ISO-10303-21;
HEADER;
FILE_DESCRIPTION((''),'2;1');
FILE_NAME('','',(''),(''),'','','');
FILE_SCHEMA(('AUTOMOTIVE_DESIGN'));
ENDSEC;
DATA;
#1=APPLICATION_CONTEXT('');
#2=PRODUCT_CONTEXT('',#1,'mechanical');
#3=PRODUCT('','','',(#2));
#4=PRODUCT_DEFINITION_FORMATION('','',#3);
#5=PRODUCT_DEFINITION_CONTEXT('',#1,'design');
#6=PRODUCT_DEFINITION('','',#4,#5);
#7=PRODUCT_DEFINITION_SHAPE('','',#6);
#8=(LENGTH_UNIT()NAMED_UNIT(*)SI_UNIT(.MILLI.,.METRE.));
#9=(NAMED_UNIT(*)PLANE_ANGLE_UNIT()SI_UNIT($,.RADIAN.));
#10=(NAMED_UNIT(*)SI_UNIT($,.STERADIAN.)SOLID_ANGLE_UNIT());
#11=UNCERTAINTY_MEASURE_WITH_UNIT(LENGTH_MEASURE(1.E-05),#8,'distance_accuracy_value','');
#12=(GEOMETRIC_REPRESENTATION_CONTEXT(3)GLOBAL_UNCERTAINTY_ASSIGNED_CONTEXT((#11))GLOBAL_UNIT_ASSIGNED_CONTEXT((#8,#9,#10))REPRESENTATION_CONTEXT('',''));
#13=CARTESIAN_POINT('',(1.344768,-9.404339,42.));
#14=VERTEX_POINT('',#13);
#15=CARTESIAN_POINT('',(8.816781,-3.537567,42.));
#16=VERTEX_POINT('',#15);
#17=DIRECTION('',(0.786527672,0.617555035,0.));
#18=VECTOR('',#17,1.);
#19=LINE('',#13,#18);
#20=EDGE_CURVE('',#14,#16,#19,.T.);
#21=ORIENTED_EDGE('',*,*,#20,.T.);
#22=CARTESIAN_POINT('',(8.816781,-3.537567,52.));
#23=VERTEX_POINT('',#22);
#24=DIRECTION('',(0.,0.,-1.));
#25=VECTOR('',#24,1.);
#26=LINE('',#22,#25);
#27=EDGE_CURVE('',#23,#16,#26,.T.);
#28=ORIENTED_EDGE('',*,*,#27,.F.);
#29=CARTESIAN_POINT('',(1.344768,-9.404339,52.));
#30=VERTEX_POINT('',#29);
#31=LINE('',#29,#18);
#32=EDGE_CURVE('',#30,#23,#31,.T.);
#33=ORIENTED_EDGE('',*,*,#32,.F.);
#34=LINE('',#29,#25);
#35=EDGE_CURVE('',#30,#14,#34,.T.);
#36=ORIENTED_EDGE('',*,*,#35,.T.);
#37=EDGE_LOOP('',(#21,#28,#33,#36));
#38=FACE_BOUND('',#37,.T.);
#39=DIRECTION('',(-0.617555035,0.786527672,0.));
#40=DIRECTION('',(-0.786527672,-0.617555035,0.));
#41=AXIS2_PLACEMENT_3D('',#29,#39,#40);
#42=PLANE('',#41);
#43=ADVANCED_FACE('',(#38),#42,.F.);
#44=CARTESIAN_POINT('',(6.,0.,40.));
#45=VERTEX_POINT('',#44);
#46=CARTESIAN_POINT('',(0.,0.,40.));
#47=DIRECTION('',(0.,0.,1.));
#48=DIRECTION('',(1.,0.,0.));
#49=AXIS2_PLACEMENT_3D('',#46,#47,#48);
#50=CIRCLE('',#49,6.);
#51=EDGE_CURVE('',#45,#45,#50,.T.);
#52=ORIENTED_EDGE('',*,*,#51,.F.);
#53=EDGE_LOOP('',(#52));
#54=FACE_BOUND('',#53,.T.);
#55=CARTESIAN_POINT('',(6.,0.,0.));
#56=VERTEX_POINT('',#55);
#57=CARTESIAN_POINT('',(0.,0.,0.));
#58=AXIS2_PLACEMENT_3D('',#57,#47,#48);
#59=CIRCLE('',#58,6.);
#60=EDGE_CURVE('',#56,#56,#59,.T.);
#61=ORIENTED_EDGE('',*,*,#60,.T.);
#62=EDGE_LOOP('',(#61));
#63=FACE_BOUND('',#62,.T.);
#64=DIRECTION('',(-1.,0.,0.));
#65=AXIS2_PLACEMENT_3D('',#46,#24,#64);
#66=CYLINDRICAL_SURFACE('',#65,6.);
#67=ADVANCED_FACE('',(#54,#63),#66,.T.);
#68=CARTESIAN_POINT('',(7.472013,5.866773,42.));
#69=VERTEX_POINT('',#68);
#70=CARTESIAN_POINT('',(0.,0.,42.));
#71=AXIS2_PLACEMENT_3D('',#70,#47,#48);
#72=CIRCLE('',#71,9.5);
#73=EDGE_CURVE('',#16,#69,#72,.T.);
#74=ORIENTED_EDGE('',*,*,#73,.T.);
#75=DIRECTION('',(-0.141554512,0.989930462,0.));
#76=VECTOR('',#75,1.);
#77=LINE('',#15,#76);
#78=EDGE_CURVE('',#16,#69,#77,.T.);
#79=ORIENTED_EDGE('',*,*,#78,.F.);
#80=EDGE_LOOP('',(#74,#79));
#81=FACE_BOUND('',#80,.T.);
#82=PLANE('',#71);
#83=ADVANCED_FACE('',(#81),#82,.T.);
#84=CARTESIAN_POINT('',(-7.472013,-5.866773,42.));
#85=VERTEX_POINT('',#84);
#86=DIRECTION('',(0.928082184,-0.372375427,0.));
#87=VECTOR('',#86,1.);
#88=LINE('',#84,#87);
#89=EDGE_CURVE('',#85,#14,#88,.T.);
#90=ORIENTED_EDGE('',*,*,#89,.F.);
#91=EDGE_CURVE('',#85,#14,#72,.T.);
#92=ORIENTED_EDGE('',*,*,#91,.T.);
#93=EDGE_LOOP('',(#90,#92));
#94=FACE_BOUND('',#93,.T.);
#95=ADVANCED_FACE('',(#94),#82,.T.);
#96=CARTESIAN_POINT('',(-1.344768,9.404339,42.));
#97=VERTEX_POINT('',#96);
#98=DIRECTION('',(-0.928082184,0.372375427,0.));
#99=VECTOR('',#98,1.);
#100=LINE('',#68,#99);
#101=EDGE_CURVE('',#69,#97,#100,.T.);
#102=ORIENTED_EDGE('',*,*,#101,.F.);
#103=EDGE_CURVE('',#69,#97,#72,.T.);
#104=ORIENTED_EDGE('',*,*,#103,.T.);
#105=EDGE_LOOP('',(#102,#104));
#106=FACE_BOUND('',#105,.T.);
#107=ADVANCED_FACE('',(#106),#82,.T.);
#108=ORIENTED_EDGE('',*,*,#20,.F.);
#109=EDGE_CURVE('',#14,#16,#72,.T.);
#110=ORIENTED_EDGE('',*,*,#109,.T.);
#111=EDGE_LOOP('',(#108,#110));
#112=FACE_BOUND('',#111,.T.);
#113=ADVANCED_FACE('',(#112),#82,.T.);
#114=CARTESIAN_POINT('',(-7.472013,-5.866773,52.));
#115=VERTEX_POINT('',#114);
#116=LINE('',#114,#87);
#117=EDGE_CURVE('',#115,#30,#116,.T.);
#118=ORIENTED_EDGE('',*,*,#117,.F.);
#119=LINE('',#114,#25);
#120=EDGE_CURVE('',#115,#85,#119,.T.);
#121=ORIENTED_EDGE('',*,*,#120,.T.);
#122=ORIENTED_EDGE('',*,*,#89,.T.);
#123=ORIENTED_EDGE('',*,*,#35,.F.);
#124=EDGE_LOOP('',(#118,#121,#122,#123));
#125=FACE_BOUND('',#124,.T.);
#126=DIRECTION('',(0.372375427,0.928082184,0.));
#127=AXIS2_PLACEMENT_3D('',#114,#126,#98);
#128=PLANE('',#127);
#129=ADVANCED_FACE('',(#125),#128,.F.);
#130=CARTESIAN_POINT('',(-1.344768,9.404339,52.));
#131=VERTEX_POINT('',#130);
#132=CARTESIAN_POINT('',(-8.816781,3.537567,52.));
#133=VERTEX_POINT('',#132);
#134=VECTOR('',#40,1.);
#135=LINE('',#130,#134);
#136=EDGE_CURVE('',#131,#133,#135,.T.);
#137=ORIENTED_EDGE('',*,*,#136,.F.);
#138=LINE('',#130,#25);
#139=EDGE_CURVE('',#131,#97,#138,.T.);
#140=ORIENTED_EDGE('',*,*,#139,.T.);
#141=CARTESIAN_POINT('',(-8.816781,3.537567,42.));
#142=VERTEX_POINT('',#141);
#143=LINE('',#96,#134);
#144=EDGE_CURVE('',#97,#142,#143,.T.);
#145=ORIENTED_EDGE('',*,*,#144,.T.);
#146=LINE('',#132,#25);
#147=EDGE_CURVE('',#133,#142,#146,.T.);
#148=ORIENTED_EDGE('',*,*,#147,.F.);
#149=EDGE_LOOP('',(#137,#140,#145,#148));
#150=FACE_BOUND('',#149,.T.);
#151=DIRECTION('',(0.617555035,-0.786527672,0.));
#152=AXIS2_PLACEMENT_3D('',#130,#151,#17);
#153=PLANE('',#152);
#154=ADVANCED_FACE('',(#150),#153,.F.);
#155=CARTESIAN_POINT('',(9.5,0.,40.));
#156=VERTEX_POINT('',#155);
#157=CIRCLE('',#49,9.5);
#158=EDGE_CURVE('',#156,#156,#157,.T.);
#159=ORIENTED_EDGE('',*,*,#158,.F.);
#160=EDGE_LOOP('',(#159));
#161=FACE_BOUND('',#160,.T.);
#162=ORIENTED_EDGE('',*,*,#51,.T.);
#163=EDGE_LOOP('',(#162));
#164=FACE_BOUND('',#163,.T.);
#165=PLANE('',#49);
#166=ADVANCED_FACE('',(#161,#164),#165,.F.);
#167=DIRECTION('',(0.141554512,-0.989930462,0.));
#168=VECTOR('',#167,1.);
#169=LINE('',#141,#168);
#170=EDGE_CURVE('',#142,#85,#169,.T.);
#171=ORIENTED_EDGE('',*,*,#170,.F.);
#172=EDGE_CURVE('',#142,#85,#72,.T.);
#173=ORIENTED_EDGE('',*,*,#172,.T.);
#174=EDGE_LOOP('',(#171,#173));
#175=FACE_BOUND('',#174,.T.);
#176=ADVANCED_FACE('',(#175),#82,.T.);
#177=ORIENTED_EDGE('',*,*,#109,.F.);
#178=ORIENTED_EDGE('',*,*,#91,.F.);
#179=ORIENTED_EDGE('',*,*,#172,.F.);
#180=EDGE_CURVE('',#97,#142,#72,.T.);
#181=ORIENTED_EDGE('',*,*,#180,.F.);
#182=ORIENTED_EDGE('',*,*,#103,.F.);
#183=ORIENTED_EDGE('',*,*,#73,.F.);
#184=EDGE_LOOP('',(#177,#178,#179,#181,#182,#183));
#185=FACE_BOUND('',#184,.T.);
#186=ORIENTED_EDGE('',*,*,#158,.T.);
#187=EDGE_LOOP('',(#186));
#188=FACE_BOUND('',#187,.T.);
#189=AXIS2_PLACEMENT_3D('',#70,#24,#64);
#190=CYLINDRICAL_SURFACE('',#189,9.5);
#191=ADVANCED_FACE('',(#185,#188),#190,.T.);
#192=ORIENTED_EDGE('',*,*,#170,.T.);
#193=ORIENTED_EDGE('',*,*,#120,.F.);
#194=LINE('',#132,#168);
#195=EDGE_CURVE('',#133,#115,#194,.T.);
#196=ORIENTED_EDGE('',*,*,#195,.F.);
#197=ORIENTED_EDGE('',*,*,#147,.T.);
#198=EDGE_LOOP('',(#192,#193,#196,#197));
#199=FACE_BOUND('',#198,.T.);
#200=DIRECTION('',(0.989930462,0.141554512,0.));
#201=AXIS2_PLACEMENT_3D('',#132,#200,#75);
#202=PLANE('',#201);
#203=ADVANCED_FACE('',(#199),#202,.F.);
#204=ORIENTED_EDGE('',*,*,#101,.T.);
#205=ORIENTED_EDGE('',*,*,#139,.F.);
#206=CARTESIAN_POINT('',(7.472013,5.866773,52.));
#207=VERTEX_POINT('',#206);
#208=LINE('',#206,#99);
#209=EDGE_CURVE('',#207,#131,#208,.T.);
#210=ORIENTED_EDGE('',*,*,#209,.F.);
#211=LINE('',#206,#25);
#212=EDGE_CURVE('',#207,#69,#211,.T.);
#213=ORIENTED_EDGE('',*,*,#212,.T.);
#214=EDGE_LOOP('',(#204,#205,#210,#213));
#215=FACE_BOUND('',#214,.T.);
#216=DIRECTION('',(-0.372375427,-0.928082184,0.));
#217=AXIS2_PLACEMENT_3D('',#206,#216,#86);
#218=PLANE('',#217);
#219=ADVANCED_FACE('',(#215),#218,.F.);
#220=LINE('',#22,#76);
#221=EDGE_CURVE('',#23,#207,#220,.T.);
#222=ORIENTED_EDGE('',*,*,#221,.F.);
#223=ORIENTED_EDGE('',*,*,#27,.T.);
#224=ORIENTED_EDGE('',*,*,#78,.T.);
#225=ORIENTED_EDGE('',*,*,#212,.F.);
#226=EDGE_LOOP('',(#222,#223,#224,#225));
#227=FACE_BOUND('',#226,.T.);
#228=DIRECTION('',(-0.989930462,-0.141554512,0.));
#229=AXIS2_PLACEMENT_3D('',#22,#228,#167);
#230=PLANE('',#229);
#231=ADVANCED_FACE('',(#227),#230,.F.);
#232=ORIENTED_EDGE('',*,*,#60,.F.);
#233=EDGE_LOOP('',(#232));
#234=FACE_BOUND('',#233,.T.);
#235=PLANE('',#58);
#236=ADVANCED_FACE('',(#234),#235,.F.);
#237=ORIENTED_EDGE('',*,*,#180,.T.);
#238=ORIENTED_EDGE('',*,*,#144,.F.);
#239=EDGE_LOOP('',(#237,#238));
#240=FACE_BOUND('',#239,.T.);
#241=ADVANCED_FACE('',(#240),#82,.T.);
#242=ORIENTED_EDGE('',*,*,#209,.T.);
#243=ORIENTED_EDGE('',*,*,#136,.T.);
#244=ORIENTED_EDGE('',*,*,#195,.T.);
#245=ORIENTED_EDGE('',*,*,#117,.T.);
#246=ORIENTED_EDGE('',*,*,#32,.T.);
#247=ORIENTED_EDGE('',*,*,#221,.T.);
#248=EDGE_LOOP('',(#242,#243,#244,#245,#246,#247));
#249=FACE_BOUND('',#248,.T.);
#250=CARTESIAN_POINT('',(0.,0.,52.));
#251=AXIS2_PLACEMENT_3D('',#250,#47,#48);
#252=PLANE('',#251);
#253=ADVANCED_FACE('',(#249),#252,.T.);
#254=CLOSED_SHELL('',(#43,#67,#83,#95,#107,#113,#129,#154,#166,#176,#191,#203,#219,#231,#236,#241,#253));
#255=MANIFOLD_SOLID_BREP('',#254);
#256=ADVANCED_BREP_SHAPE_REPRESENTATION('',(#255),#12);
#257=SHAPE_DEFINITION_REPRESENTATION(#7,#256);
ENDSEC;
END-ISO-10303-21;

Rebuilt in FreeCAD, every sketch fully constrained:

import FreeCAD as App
import Part
import Sketcher
from FreeCAD import Vector
Q = App.Units.Quantity


def add_polygon(sketch, points):
    """Adds a closed chain of lines whose ends are joined by coincident constraints."""
    first, n = sketch.GeometryCount, len(points)
    for a, b in zip(points, points[1:] + points[:1]):
        sketch.addGeometry(Part.LineSegment(App.Vector(*a, 0), App.Vector(*b, 0)), False)
    for i in range(n):
        sketch.addConstraint(Sketcher.Constraint("Coincident", first + i, 2, first + (i + 1) % n, 1))

doc = App.newDocument("Part")
body = doc.addObject("PartDesign::Body", "Body")

# Sketch on XY plane
sketch1 = body.newObject("Sketcher::SketchObject", "Sketch")
sketch1.AttachmentSupport = (doc.getObject("XY_Plane"), [""])
sketch1.MapMode = "FlatFace"
sketch1.addGeometry(Part.Circle(Vector(0, 0, 0), Vector(0, 0, 1), 6), False)
sketch1.addConstraint(Sketcher.Constraint("Coincident", 0, 3, -1, 1))
sketch1.addConstraint(Sketcher.Constraint("Diameter", 0, Q("12 mm")))
pad1 = body.newObject("PartDesign::Pad", "Pad")
pad1.Profile = sketch1
pad1.Length = 40

# Sketch on XY plane
sketch2 = body.newObject("Sketcher::SketchObject", "Sketch001")
sketch2.AttachmentSupport = (doc.getObject("XY_Plane"), [""])
sketch2.MapMode = "FlatFace"
sketch2.AttachmentOffset = App.Placement(Vector(0, 0, 40), App.Rotation())
sketch2.addGeometry(Part.Circle(Vector(0, 0, 0), Vector(0, 0, 1), 10), False)
sketch2.addConstraint(Sketcher.Constraint("Coincident", 0, 3, -1, 1))
sketch2.addConstraint(Sketcher.Constraint("Diameter", 0, Q("19 mm")))
pad2 = body.newObject("PartDesign::Pad", "Pad001")
pad2.Profile = sketch2
pad2.Length = 2

# Sketch on XY plane
sketch3 = body.newObject("Sketcher::SketchObject", "Sketch002")
sketch3.AttachmentSupport = (doc.getObject("XY_Plane"), [""])
sketch3.MapMode = "FlatFace"
sketch3.AttachmentOffset = App.Placement(Vector(0, 0, 42), App.Rotation())
add_polygon(sketch3, [(-1, 9), (-9, 4), (-7, -6), (1, -9), (9, -4), (7, 6)])  # lines 0-5
sketch3.addConstraint(Sketcher.Constraint("Symmetric", 0, 2, 3, 2, -1, 1))
sketch3.addConstraint(Sketcher.Constraint("Symmetric", 1, 2, 4, 2, -1, 1))
sketch3.addConstraint(Sketcher.Constraint("Symmetric", 2, 2, 5, 2, -1, 1))
sketch3.addConstraint(Sketcher.Constraint("Equal", 0, 1))
sketch3.addConstraint(Sketcher.Constraint("Equal", 1, 2))
sketch3.addConstraint(Sketcher.Constraint("Distance", 0, Q("9.5 mm")))
sketch3.addConstraint(Sketcher.Constraint("DistanceX", 0, 2, -1, 1, Q("8.816781 mm")))
sketch3.addConstraint(Sketcher.Constraint("DistanceY", 2, 2, -1, 1, Q("9.404339 mm")))
sketch3.addConstraint(Sketcher.Constraint("DistanceY", 1, 2, 0, 2, Q("9.404339 mm")))
pad3 = body.newObject("PartDesign::Pad", "Pad002")
pad3.Profile = sketch3
pad3.Length = 10

doc.recompute()
